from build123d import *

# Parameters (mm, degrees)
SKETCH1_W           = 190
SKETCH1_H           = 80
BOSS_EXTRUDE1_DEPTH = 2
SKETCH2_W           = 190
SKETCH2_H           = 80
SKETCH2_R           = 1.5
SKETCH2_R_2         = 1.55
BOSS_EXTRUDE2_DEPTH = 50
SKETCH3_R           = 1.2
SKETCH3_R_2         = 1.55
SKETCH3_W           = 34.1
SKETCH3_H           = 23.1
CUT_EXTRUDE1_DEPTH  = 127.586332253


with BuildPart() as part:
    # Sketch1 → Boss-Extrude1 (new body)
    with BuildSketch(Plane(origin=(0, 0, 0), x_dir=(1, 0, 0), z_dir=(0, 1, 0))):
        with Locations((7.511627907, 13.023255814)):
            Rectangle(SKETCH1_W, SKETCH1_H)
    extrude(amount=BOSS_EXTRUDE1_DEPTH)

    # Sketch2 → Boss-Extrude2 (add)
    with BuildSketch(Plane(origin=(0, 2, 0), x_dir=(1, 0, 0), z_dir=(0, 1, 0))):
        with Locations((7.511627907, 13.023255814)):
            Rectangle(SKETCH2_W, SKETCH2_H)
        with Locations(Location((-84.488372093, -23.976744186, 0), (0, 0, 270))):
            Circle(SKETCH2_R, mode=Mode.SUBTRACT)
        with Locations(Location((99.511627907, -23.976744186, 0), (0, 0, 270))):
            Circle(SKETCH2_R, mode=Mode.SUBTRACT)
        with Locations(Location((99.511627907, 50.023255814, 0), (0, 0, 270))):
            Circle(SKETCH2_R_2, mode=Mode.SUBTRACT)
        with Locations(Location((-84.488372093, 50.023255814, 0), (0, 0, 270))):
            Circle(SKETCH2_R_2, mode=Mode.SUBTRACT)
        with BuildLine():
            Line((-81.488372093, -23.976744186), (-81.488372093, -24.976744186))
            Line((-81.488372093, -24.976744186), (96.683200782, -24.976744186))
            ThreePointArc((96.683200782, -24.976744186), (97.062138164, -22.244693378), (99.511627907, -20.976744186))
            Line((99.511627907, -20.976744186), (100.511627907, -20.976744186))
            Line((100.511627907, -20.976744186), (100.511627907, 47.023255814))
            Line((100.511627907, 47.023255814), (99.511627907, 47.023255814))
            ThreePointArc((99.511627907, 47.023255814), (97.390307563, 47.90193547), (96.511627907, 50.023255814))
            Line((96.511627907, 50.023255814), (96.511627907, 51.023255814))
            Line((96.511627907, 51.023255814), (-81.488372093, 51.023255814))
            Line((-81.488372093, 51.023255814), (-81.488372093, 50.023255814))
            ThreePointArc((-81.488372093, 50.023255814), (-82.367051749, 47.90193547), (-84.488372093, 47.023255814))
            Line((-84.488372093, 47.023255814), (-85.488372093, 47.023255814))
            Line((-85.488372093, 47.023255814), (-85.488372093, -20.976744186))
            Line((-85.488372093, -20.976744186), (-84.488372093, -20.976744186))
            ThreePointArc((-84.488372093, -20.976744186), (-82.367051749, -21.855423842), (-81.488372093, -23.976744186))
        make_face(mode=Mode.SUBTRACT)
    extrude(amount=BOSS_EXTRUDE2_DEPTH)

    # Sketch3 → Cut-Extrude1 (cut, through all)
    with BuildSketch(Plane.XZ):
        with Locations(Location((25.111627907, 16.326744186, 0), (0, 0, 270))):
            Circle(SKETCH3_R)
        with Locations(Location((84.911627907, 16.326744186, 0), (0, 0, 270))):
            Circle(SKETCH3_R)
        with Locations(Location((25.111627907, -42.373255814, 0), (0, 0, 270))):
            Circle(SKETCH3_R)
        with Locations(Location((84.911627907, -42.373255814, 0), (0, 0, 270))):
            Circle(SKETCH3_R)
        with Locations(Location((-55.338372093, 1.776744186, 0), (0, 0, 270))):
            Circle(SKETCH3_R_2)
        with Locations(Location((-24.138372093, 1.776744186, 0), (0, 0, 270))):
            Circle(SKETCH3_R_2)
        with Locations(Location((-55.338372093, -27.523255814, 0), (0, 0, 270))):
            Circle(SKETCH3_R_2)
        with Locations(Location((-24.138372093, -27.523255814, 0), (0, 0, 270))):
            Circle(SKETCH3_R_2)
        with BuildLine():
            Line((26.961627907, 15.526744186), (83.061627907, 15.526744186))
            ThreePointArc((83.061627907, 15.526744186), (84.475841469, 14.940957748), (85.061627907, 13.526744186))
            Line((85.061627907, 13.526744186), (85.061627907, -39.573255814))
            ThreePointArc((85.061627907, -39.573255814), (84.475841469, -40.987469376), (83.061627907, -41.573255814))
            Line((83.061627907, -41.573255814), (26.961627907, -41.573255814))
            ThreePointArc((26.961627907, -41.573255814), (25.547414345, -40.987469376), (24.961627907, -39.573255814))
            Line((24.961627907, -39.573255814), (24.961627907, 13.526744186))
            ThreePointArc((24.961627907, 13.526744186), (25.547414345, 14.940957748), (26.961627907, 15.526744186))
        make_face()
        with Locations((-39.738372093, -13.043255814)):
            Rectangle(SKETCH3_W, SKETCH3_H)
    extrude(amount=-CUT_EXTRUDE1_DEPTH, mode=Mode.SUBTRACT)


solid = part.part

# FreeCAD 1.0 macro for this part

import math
import FreeCAD as App
import Part
import Sketcher

V = App.Vector

doc = App.newDocument("Part")
params = doc.addObject("Spreadsheet::Sheet", "Params")
for row, (alias, value) in enumerate([
    ("sketch1_width", "190 mm"),
    ("sketch1_height", "80 mm"),
    ("pad1_length", "2 mm"),
    ("sketch2_diameter", "3 mm"),
    ("sketch2_radius", "3 mm"),
    ("sketch2_diameter2", "3.1 mm"),
    ("sketch2_width", "190 mm"),
    ("sketch2_width2", "1 mm"),
    ("pad2_length", "50 mm"),
    ("sketch3_radius", "2 mm"),
    ("sketch3_diameter", "2.4 mm"),
    ("sketch3_diameter2", "3.1 mm"),
    ("sketch3_width", "56.1 mm"),
    ("sketch3_width2", "34.1 mm"),
], start=1):
    params.set(f"A{row}", alias)
    params.set(f"B{row}", "=" + value)
    params.setAlias(f"B{row}", alias)

body = doc.addObject("PartDesign::Body", "Body")

sketch1 = body.newObject("Sketcher::SketchObject", "Sketch")
sketch1.AttachmentSupport = (doc.getObject("XZ_Plane"), [""])
sketch1.MapMode = "FlatFace"
sketch1.addGeometry([
    Part.LineSegment(V(-87.488372, -53.023256, 0), V(-87.488372, 26.976744, 0)),
    Part.LineSegment(V(-87.488372, 26.976744, 0), V(102.511628, 26.976744, 0)),
    Part.LineSegment(V(102.511628, 26.976744, 0), V(102.511628, -53.023256, 0)),
    Part.LineSegment(V(102.511628, -53.023256, 0), V(-87.488372, -53.023256, 0)),
], False)
sketch1.addConstraint([
    Sketcher.Constraint("Coincident", 0, 2, 1, 1),
    Sketcher.Constraint("Coincident", 1, 2, 2, 1),
    Sketcher.Constraint("Coincident", 2, 2, 3, 1),
    Sketcher.Constraint("Coincident", 3, 2, 0, 1),
    Sketcher.Constraint("Vertical", 0),
    Sketcher.Constraint("Horizontal", 1),
    Sketcher.Constraint("Vertical", 2),
    Sketcher.Constraint("Horizontal", 3),
    Sketcher.Constraint("DistanceX", 1, 1, 1, 2, 190.0),
    Sketcher.Constraint("DistanceY", 0, 1, 0, 2, 80.0),
    Sketcher.Constraint("DistanceX", 0, 2, -1, 1, 87.488372),
    Sketcher.Constraint("DistanceY", -1, 1, 0, 2, 26.976744),
])
sketch1.setExpression("Constraints[8]", "Params.sketch1_width")
sketch1.setExpression("Constraints[9]", "Params.sketch1_height")
pad1 = body.newObject("PartDesign::Pad", "Pad")
pad1.Profile = sketch1
pad1.setExpression("Length", "Params.pad1_length")
pad1.Reversed = True

sketch2 = body.newObject("Sketcher::SketchObject", "Sketch001")
sketch2.AttachmentSupport = (doc.getObject("XZ_Plane"), [""])
sketch2.MapMode = "FlatFace"
sketch2.AttachmentOffset = App.Placement(V(0, 0, -2), App.Rotation())
sketch2.addGeometry([
    Part.LineSegment(V(-87.488372, -53.023256, 0), V(-87.488372, 26.976744, 0)),
    Part.LineSegment(V(-87.488372, 26.976744, 0), V(102.511628, 26.976744, 0)),
    Part.LineSegment(V(102.511628, 26.976744, 0), V(102.511628, -53.023256, 0)),
    Part.LineSegment(V(102.511628, -53.023256, 0), V(-87.488372, -53.023256, 0)),
    Part.Circle(V(-84.488372, 23.976744, 0), V(0, 0, 1), 1.5),
    Part.Circle(V(99.511628, 23.976744, 0), V(0, 0, 1), 1.5),
    Part.LineSegment(V(-81.488372, 24.976744, 0), V(-81.488372, 23.976744, 0)),
    Part.ArcOfCircle(Part.Circle(V(-84.488372, 23.976744, 0), V(0, 0, 1), 3), math.radians(-90), math.radians(0)),
    Part.LineSegment(V(-84.488372, 20.976744, 0), V(-85.488372, 20.976744, 0)),
    Part.LineSegment(V(-85.488372, 20.976744, 0), V(-85.488372, -47.023256, 0)),
    Part.LineSegment(V(-85.488372, -47.023256, 0), V(-84.488372, -47.023256, 0)),
    Part.ArcOfCircle(Part.Circle(V(-84.488372, -50.023256, 0), V(0, 0, 1), 3), math.radians(0), math.radians(90)),
    Part.LineSegment(V(-81.488372, -50.023256, 0), V(-81.488372, -51.023256, 0)),
    Part.LineSegment(V(-81.488372, -51.023256, 0), V(96.511628, -51.023256, 0)),
    Part.LineSegment(V(96.511628, -51.023256, 0), V(96.511628, -50.023256, 0)),
    Part.ArcOfCircle(Part.Circle(V(99.511628, -50.023256, 0), V(0, 0, 1), 3), math.radians(90), math.radians(180)),
    Part.LineSegment(V(99.511628, -47.023256, 0), V(100.511628, -47.023256, 0)),
    Part.LineSegment(V(100.511628, -47.023256, 0), V(100.511628, 20.976744, 0)),
    Part.LineSegment(V(100.511628, 20.976744, 0), V(99.511628, 20.976744, 0)),
    Part.ArcOfCircle(Part.Circle(V(99.511628, 23.976744, 0), V(0, 0, 1), 3), math.radians(160.528779), math.radians(270)),
    Part.LineSegment(V(96.683201, 24.976744, 0), V(-81.488372, 24.976744, 0)),
    Part.Circle(V(-84.488372, -50.023256, 0), V(0, 0, 1), 1.55),
    Part.Circle(V(99.511628, -50.023256, 0), V(0, 0, 1), 1.55),
], False)
sketch2.addConstraint([
    Sketcher.Constraint("Coincident", 0, 2, 1, 1),
    Sketcher.Constraint("Coincident", 1, 2, 2, 1),
    Sketcher.Constraint("Coincident", 2, 2, 3, 1),
    Sketcher.Constraint("Coincident", 3, 2, 0, 1),
    Sketcher.Constraint("Tangent", 6, 2, 7, 2),
    Sketcher.Constraint("Tangent", 7, 1, 8, 1),
    Sketcher.Constraint("Coincident", 8, 2, 9, 1),
    Sketcher.Constraint("Coincident", 9, 2, 10, 1),
    Sketcher.Constraint("Tangent", 10, 2, 11, 2),
    Sketcher.Constraint("Tangent", 11, 1, 12, 1),
    Sketcher.Constraint("Coincident", 12, 2, 13, 1),
    Sketcher.Constraint("Coincident", 13, 2, 14, 1),
    Sketcher.Constraint("Tangent", 14, 2, 15, 2),
    Sketcher.Constraint("Tangent", 15, 1, 16, 1),
    Sketcher.Constraint("Coincident", 16, 2, 17, 1),
    Sketcher.Constraint("Coincident", 17, 2, 18, 1),
    Sketcher.Constraint("Tangent", 18, 2, 19, 2),
    Sketcher.Constraint("Coincident", 19, 1, 20, 1),
    Sketcher.Constraint("Coincident", 20, 2, 6, 1),
    Sketcher.Constraint("Vertical", 0),
    Sketcher.Constraint("Horizontal", 1),
    Sketcher.Constraint("Vertical", 2),
    Sketcher.Constraint("Horizontal", 3),
    Sketcher.Constraint("Vertical", 6),
    Sketcher.Constraint("Horizontal", 8),
    Sketcher.Constraint("Vertical", 9),
    Sketcher.Constraint("Horizontal", 10),
    Sketcher.Constraint("Vertical", 12),
    Sketcher.Constraint("Horizontal", 13),
    Sketcher.Constraint("Vertical", 14),
    Sketcher.Constraint("Horizontal", 16),
    Sketcher.Constraint("Vertical", 17),
    Sketcher.Constraint("Horizontal", 18),
    Sketcher.Constraint("Horizontal", 20),
    Sketcher.Constraint("Coincident", 7, 3, 4, 3),
    Sketcher.Constraint("Coincident", 19, 3, 5, 3),
    Sketcher.Constraint("Coincident", 21, 3, 11, 3),
    Sketcher.Constraint("Coincident", 22, 3, 15, 3),
    Sketcher.Constraint("Equal", 4, 5),
    Sketcher.Constraint("Equal", 7, 11),
    Sketcher.Constraint("Equal", 11, 15),
    Sketcher.Constraint("Equal", 15, 19),
    Sketcher.Constraint("Equal", 21, 22),
    Sketcher.Constraint("Horizontal", 4, 3, 5, 3),
    Sketcher.Constraint("Horizontal", 11, 3, 15, 3),
    Sketcher.Constraint("Vertical", 7, 3, 11, 3),
    Sketcher.Constraint("Vertical", 5, 3, 15, 3),
    Sketcher.Constraint("Equal", 10, 16),
    Sketcher.Constraint("Equal", 18, 6),
    Sketcher.Constraint("Equal", 6, 12),
    Sketcher.Constraint("Diameter", 4, 3.0),
    Sketcher.Constraint("Radius", 7, 3.0),
    Sketcher.Constraint("Diameter", 21, 3.1),
    Sketcher.Constraint("DistanceX", 1, 1, 1, 2, 190.0),
    Sketcher.Constraint("DistanceX", 8, 2, 8, 1, 1.0),
    Sketcher.Constraint("DistanceX", 13, 1, 13, 2, 178.0),
    Sketcher.Constraint("DistanceY", 0, 1, 0, 2, 80.0),
    Sketcher.Constraint("DistanceY", 9, 2, 9, 1, 68.0),
    Sketcher.Constraint("DistanceX", 0, 2, 4, 3, 3.0),
    Sketcher.Constraint("DistanceY", 4, 3, 0, 2, 3.0),
    Sketcher.Constraint("DistanceX", -1, 1, 19, 1, 96.683201),
    Sketcher.Constraint("DistanceY", -1, 1, 4, 3, 23.976744),
])
sketch2.setExpression("Constraints[50]", "Params.sketch2_diameter")
sketch2.setExpression("Constraints[51]", "Params.sketch2_radius")
sketch2.setExpression("Constraints[52]", "Params.sketch2_diameter2")
sketch2.setExpression("Constraints[53]", "Params.sketch2_width")
sketch2.setExpression("Constraints[54]", "Params.sketch2_width2")
pad2 = body.newObject("PartDesign::Pad", "Pad001")
pad2.Profile = sketch2
pad2.setExpression("Length", "Params.pad2_length")
pad2.Reversed = True

sketch3 = body.newObject("Sketcher::SketchObject", "Sketch002")
sketch3.AttachmentSupport = (doc.getObject("XZ_Plane"), [""])
sketch3.MapMode = "FlatFace"
sketch3.addGeometry([
    Part.Circle(V(25.111628, 16.326744, 0), V(0, 0, 1), 1.2),
    Part.Circle(V(84.911628, 16.326744, 0), V(0, 0, 1), 1.2),
    Part.Circle(V(25.111628, -42.373256, 0), V(0, 0, 1), 1.2),
    Part.Circle(V(84.911628, -42.373256, 0), V(0, 0, 1), 1.2),
    Part.Circle(V(-55.338372, 1.776744, 0), V(0, 0, 1), 1.55),
    Part.Circle(V(-24.138372, 1.776744, 0), V(0, 0, 1), 1.55),
    Part.Circle(V(-55.338372, -27.523256, 0), V(0, 0, 1), 1.55),
    Part.Circle(V(-24.138372, -27.523256, 0), V(0, 0, 1), 1.55),
    Part.LineSegment(V(83.061628, 15.526744, 0), V(26.961628, 15.526744, 0)),
    Part.ArcOfCircle(Part.Circle(V(26.961628, 13.526744, 0), V(0, 0, 1), 2), math.radians(90), math.radians(180)),
    Part.LineSegment(V(24.961628, 13.526744, 0), V(24.961628, -39.573256, 0)),
    Part.ArcOfCircle(Part.Circle(V(26.961628, -39.573256, 0), V(0, 0, 1), 2), math.radians(-180), math.radians(-90)),
    Part.LineSegment(V(26.961628, -41.573256, 0), V(83.061628, -41.573256, 0)),
    Part.ArcOfCircle(Part.Circle(V(83.061628, -39.573256, 0), V(0, 0, 1), 2), math.radians(-90), math.radians(0)),
    Part.LineSegment(V(85.061628, -39.573256, 0), V(85.061628, 13.526744, 0)),
    Part.ArcOfCircle(Part.Circle(V(83.061628, 13.526744, 0), V(0, 0, 1), 2), math.radians(0), math.radians(90)),
    Part.LineSegment(V(-56.788372, -1.493256, 0), V(-56.788372, -24.593256, 0)),
    Part.LineSegment(V(-56.788372, -24.593256, 0), V(-22.688372, -24.593256, 0)),
    Part.LineSegment(V(-22.688372, -24.593256, 0), V(-22.688372, -1.493256, 0)),
    Part.LineSegment(V(-22.688372, -1.493256, 0), V(-56.788372, -1.493256, 0)),
], False)
sketch3.addConstraint([
    Sketcher.Constraint("Tangent", 8, 2, 9, 1),
    Sketcher.Constraint("Tangent", 9, 2, 10, 1),
    Sketcher.Constraint("Tangent", 10, 2, 11, 1),
    Sketcher.Constraint("Tangent", 11, 2, 12, 1),
    Sketcher.Constraint("Tangent", 12, 2, 13, 1),
    Sketcher.Constraint("Tangent", 13, 2, 14, 1),
    Sketcher.Constraint("Tangent", 14, 2, 15, 1),
    Sketcher.Constraint("Tangent", 15, 2, 8, 1),
    Sketcher.Constraint("Coincident", 16, 2, 17, 1),
    Sketcher.Constraint("Coincident", 17, 2, 18, 1),
    Sketcher.Constraint("Coincident", 18, 2, 19, 1),
    Sketcher.Constraint("Coincident", 19, 2, 16, 1),
    Sketcher.Constraint("Horizontal", 8),
    Sketcher.Constraint("Vertical", 10),
    Sketcher.Constraint("Horizontal", 12),
    Sketcher.Constraint("Vertical", 14),
    Sketcher.Constraint("Vertical", 16),
    Sketcher.Constraint("Horizontal", 17),
    Sketcher.Constraint("Vertical", 18),
    Sketcher.Constraint("Horizontal", 19),
    Sketcher.Constraint("Equal", 0, 1),
    Sketcher.Constraint("Equal", 1, 2),
    Sketcher.Constraint("Equal", 2, 3),
    Sketcher.Constraint("Equal", 4, 5),
    Sketcher.Constraint("Equal", 5, 6),
    Sketcher.Constraint("Equal", 6, 7),
    Sketcher.Constraint("Equal", 9, 11),
    Sketcher.Constraint("Equal", 11, 13),
    Sketcher.Constraint("Equal", 13, 15),
    Sketcher.Constraint("Horizontal", 0, 3, 1, 3),
    Sketcher.Constraint("Horizontal", 2, 3, 3, 3),
    Sketcher.Constraint("Horizontal", 4, 3, 5, 3),
    Sketcher.Constraint("Horizontal", 6, 3, 7, 3),
    Sketcher.Constraint("Vertical", 0, 3, 2, 3),
    Sketcher.Constraint("Vertical", 1, 3, 3, 3),
    Sketcher.Constraint("Vertical", 4, 3, 6, 3),
    Sketcher.Constraint("Vertical", 5, 3, 7, 3),
    Sketcher.Constraint("Radius", 9, 2.0),
    Sketcher.Constraint("Diameter", 0, 2.4),
    Sketcher.Constraint("Diameter", 4, 3.1),
    Sketcher.Constraint("DistanceX", 8, 2, 8, 1, 56.1),
    Sketcher.Constraint("DistanceX", 17, 1, 17, 2, 34.1),
    Sketcher.Constraint("DistanceY", 10, 2, 10, 1, 53.1),
    Sketcher.Constraint("DistanceY", 16, 2, 16, 1, 23.1),
    Sketcher.Constraint("DistanceX", 0, 3, 1, 3, 59.8),
    Sketcher.Constraint("DistanceY", 2, 3, 0, 3, 58.7),
    Sketcher.Constraint("DistanceX", 4, 3, 5, 3, 31.2),
    Sketcher.Constraint("DistanceY", 6, 3, 4, 3, 29.3),
    Sketcher.Constraint("DistanceY", 9, 3, 0, 3, 2.8),
    Sketcher.Constraint("DistanceX", 5, 3, 9, 3, 51.1),
    Sketcher.Constraint("DistanceX", 4, 3, 0, 3, 80.45),
    Sketcher.Constraint("DistanceY", 4, 3, 0, 3, 14.55),
    Sketcher.Constraint("DistanceX", 16, 2, 6, 3, 1.45),
    Sketcher.Constraint("DistanceY", 6, 3, 16, 2, 2.93),
    Sketcher.Constraint("DistanceX", -1, 1, 0, 3, 25.111628),
    Sketcher.Constraint("DistanceY", -1, 1, 0, 3, 16.326744),
])
sketch3.setExpression("Constraints[37]", "Params.sketch3_radius")
sketch3.setExpression("Constraints[38]", "Params.sketch3_diameter")
sketch3.setExpression("Constraints[39]", "Params.sketch3_diameter2")
sketch3.setExpression("Constraints[40]", "Params.sketch3_width")
sketch3.setExpression("Constraints[41]", "Params.sketch3_width2")
pocket1 = body.newObject("PartDesign::Pocket", "Pocket")
pocket1.Profile = sketch3
pocket1.Type = "ThroughAll"

doc.recompute()
